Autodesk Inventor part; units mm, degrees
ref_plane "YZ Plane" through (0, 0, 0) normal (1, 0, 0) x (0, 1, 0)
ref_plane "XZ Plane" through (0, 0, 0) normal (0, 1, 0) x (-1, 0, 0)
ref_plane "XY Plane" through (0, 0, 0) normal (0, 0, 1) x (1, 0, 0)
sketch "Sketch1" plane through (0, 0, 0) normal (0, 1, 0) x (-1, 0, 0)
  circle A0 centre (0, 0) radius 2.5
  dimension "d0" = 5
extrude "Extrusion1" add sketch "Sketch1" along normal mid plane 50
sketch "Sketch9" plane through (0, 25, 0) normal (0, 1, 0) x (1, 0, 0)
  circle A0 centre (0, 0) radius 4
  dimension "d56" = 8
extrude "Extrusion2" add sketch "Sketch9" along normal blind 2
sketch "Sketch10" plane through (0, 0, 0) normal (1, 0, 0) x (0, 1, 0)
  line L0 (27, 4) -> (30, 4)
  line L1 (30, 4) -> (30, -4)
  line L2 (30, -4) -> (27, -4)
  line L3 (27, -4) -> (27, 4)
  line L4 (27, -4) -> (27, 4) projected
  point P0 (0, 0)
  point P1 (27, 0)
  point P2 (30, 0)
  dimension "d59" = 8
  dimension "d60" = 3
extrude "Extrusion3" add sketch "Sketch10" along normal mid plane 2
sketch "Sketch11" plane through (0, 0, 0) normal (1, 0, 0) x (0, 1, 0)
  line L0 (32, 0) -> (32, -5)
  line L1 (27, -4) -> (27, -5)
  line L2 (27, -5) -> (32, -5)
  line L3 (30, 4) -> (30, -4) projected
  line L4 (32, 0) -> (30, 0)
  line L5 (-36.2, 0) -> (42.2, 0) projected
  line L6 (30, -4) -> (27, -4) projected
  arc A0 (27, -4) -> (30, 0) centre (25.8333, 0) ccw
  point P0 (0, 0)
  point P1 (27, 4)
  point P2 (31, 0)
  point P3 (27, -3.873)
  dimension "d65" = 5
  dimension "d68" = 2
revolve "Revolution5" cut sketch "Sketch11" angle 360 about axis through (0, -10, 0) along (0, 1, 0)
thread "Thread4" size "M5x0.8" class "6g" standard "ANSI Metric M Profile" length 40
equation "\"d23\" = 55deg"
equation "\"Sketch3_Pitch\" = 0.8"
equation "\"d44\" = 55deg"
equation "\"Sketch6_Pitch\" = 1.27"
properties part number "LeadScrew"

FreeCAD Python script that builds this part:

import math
import FreeCAD as App
import Part
import Sketcher
from FreeCAD import Vector

doc = App.newDocument("Part")
params = doc.addObject("Spreadsheet::Sheet", "Params")
for row, (alias, value) in enumerate([
    ("sketch1_diameter", "5 mm"),
    ("pad1_length", "50 mm"),
    ("sketch2_diameter", "8 mm"),
    ("pad2_length", "2 mm"),
    ("sketch3_width", "3 mm"),
    ("sketch3_height", "8 mm"),
    ("pad3_length", "2 mm"),
    ("sketch4_width", "2 mm"),
    ("sketch4_width2", "5 mm"),
    ("sketch4_height", "1 mm"),
    ("groove_angle", "360 deg"),
], start=1):
    params.set(f"A{row}", alias)
    params.set(f"B{row}", "=" + value)
    params.setAlias(f"B{row}", alias)

body = doc.addObject("PartDesign::Body", "Body")

sketch1 = body.newObject("Sketcher::SketchObject", "Sketch")
sketch1.AttachmentSupport = (doc.getObject("XZ_Plane"), [""])
sketch1.MapMode = "FlatFace"
sketch1.addGeometry(Part.Circle(Vector(0, 0, 0), Vector(0, 0, 1), 2.5), False)
sketch1.addConstraint(Sketcher.Constraint("Coincident", 0, 3, -1, 1))
sketch1.addConstraint(Sketcher.Constraint("Diameter", 0, 5.0))
sketch1.setExpression("Constraints[1]", "Params.sketch1_diameter")
pad1 = body.newObject("PartDesign::Pad", "Pad")
pad1.Profile = sketch1
pad1.setExpression("Length", "Params.pad1_length")
pad1.Midplane = True

sketch2 = body.newObject("Sketcher::SketchObject", "Sketch001")
sketch2.AttachmentSupport = (doc.getObject("XZ_Plane"), [""])
sketch2.MapMode = "FlatFace"
sketch2.AttachmentOffset = App.Placement(Vector(0, 0, -25), App.Rotation())
sketch2.addGeometry(Part.Circle(Vector(0, 0, 0), Vector(0, 0, 1), 4), False)
sketch2.addConstraint(Sketcher.Constraint("Coincident", 0, 3, -1, 1))
sketch2.addConstraint(Sketcher.Constraint("Diameter", 0, 8.0))
sketch2.setExpression("Constraints[1]", "Params.sketch2_diameter")
pad2 = body.newObject("PartDesign::Pad", "Pad001")
pad2.Profile = sketch2
pad2.setExpression("Length", "Params.pad2_length")
pad2.Reversed = True

sketch3 = body.newObject("Sketcher::SketchObject", "Sketch002")
sketch3.AttachmentSupport = (doc.getObject("YZ_Plane"), [""])
sketch3.MapMode = "FlatFace"
sketch3.addGeometry(Part.LineSegment(Vector(30, 4, 0), Vector(27, 4, 0)), False)
sketch3.addGeometry(Part.LineSegment(Vector(27, 4, 0), Vector(27, -4, 0)), False)
sketch3.addGeometry(Part.LineSegment(Vector(27, -4, 0), Vector(30, -4, 0)), False)
sketch3.addGeometry(Part.LineSegment(Vector(30, -4, 0), Vector(30, 4, 0)), False)
sketch3.addConstraint(Sketcher.Constraint("Coincident", 0, 2, 1, 1))
sketch3.addConstraint(Sketcher.Constraint("Coincident", 1, 2, 2, 1))
sketch3.addConstraint(Sketcher.Constraint("Coincident", 2, 2, 3, 1))
sketch3.addConstraint(Sketcher.Constraint("Coincident", 3, 2, 0, 1))
sketch3.addConstraint(Sketcher.Constraint("Horizontal", 0))
sketch3.addConstraint(Sketcher.Constraint("Vertical", 1))
sketch3.addConstraint(Sketcher.Constraint("Horizontal", 2))
sketch3.addConstraint(Sketcher.Constraint("Vertical", 3))
sketch3.addConstraint(Sketcher.Constraint("DistanceX", 0, 2, 0, 1, 3.0))
sketch3.addConstraint(Sketcher.Constraint("DistanceY", 1, 2, 1, 1, 8.0))
sketch3.addConstraint(Sketcher.Constraint("DistanceX", -1, 1, 0, 2, 27.0))
sketch3.addConstraint(Sketcher.Constraint("DistanceY", -1, 1, 0, 2, 4.0))
sketch3.setExpression("Constraints[8]", "Params.sketch3_width")
sketch3.setExpression("Constraints[9]", "Params.sketch3_height")
pad3 = body.newObject("PartDesign::Pad", "Pad002")
pad3.Profile = sketch3
pad3.setExpression("Length", "Params.pad3_length")
pad3.Midplane = True

sketch4 = body.newObject("Sketcher::SketchObject", "Sketch003")
sketch4.AttachmentSupport = (doc.getObject("YZ_Plane"), [""])
sketch4.MapMode = "FlatFace"
sketch4.addGeometry(Part.LineSegment(Vector(32, -5, 0), Vector(32, 0, 0)), False)
sketch4.addGeometry(Part.LineSegment(Vector(32, 0, 0), Vector(30, 0, 0)), False)
sketch4.addGeometry(Part.ArcOfCircle(Part.Circle(Vector(25.8333, 0, 0), Vector(0, 0, 1), 4.166676), math.radians(-73.739355), math.radians(0)), False)
sketch4.addGeometry(Part.LineSegment(Vector(27, -4, 0), Vector(27, -5, 0)), False)
sketch4.addGeometry(Part.LineSegment(Vector(27, -5, 0), Vector(32, -5, 0)), False)
sketch4.addConstraint(Sketcher.Constraint("Coincident", 0, 2, 1, 1))
sketch4.addConstraint(Sketcher.Constraint("Coincident", 1, 2, 2, 2))
sketch4.addConstraint(Sketcher.Constraint("Coincident", 2, 1, 3, 1))
sketch4.addConstraint(Sketcher.Constraint("Coincident", 3, 2, 4, 1))
sketch4.addConstraint(Sketcher.Constraint("Coincident", 4, 2, 0, 1))
sketch4.addConstraint(Sketcher.Constraint("Vertical", 0))
sketch4.addConstraint(Sketcher.Constraint("Horizontal", 1))
sketch4.addConstraint(Sketcher.Constraint("Vertical", 3))
sketch4.addConstraint(Sketcher.Constraint("Horizontal", 4))
sketch4.addConstraint(Sketcher.Constraint("PointOnObject", 2, 3, -1))
sketch4.addConstraint(Sketcher.Constraint("PointOnObject", 0, 2, -1))
sketch4.addConstraint(Sketcher.Constraint("Equal", 4, 0))
sketch4.addConstraint(Sketcher.Constraint("DistanceX", 1, 2, 1, 1, 2.0))
sketch4.addConstraint(Sketcher.Constraint("DistanceX", 4, 1, 4, 2, 5.0))
sketch4.addConstraint(Sketcher.Constraint("DistanceY", 3, 2, 3, 1, 1.0))
sketch4.addConstraint(Sketcher.Constraint("DistanceX", -1, 1, 0, 2, 32.0))
sketch4.setExpression("Constraints[12]", "Params.sketch4_width")
sketch4.setExpression("Constraints[13]", "Params.sketch4_width2")
sketch4.setExpression("Constraints[14]", "Params.sketch4_height")
groove = body.newObject("PartDesign::Groove", "Groove")
groove.Profile = sketch4
groove.ReferenceAxis = (sketch4, ["H_Axis"])
groove.setExpression("Angle", "Params.groove_angle")

doc.recompute()
